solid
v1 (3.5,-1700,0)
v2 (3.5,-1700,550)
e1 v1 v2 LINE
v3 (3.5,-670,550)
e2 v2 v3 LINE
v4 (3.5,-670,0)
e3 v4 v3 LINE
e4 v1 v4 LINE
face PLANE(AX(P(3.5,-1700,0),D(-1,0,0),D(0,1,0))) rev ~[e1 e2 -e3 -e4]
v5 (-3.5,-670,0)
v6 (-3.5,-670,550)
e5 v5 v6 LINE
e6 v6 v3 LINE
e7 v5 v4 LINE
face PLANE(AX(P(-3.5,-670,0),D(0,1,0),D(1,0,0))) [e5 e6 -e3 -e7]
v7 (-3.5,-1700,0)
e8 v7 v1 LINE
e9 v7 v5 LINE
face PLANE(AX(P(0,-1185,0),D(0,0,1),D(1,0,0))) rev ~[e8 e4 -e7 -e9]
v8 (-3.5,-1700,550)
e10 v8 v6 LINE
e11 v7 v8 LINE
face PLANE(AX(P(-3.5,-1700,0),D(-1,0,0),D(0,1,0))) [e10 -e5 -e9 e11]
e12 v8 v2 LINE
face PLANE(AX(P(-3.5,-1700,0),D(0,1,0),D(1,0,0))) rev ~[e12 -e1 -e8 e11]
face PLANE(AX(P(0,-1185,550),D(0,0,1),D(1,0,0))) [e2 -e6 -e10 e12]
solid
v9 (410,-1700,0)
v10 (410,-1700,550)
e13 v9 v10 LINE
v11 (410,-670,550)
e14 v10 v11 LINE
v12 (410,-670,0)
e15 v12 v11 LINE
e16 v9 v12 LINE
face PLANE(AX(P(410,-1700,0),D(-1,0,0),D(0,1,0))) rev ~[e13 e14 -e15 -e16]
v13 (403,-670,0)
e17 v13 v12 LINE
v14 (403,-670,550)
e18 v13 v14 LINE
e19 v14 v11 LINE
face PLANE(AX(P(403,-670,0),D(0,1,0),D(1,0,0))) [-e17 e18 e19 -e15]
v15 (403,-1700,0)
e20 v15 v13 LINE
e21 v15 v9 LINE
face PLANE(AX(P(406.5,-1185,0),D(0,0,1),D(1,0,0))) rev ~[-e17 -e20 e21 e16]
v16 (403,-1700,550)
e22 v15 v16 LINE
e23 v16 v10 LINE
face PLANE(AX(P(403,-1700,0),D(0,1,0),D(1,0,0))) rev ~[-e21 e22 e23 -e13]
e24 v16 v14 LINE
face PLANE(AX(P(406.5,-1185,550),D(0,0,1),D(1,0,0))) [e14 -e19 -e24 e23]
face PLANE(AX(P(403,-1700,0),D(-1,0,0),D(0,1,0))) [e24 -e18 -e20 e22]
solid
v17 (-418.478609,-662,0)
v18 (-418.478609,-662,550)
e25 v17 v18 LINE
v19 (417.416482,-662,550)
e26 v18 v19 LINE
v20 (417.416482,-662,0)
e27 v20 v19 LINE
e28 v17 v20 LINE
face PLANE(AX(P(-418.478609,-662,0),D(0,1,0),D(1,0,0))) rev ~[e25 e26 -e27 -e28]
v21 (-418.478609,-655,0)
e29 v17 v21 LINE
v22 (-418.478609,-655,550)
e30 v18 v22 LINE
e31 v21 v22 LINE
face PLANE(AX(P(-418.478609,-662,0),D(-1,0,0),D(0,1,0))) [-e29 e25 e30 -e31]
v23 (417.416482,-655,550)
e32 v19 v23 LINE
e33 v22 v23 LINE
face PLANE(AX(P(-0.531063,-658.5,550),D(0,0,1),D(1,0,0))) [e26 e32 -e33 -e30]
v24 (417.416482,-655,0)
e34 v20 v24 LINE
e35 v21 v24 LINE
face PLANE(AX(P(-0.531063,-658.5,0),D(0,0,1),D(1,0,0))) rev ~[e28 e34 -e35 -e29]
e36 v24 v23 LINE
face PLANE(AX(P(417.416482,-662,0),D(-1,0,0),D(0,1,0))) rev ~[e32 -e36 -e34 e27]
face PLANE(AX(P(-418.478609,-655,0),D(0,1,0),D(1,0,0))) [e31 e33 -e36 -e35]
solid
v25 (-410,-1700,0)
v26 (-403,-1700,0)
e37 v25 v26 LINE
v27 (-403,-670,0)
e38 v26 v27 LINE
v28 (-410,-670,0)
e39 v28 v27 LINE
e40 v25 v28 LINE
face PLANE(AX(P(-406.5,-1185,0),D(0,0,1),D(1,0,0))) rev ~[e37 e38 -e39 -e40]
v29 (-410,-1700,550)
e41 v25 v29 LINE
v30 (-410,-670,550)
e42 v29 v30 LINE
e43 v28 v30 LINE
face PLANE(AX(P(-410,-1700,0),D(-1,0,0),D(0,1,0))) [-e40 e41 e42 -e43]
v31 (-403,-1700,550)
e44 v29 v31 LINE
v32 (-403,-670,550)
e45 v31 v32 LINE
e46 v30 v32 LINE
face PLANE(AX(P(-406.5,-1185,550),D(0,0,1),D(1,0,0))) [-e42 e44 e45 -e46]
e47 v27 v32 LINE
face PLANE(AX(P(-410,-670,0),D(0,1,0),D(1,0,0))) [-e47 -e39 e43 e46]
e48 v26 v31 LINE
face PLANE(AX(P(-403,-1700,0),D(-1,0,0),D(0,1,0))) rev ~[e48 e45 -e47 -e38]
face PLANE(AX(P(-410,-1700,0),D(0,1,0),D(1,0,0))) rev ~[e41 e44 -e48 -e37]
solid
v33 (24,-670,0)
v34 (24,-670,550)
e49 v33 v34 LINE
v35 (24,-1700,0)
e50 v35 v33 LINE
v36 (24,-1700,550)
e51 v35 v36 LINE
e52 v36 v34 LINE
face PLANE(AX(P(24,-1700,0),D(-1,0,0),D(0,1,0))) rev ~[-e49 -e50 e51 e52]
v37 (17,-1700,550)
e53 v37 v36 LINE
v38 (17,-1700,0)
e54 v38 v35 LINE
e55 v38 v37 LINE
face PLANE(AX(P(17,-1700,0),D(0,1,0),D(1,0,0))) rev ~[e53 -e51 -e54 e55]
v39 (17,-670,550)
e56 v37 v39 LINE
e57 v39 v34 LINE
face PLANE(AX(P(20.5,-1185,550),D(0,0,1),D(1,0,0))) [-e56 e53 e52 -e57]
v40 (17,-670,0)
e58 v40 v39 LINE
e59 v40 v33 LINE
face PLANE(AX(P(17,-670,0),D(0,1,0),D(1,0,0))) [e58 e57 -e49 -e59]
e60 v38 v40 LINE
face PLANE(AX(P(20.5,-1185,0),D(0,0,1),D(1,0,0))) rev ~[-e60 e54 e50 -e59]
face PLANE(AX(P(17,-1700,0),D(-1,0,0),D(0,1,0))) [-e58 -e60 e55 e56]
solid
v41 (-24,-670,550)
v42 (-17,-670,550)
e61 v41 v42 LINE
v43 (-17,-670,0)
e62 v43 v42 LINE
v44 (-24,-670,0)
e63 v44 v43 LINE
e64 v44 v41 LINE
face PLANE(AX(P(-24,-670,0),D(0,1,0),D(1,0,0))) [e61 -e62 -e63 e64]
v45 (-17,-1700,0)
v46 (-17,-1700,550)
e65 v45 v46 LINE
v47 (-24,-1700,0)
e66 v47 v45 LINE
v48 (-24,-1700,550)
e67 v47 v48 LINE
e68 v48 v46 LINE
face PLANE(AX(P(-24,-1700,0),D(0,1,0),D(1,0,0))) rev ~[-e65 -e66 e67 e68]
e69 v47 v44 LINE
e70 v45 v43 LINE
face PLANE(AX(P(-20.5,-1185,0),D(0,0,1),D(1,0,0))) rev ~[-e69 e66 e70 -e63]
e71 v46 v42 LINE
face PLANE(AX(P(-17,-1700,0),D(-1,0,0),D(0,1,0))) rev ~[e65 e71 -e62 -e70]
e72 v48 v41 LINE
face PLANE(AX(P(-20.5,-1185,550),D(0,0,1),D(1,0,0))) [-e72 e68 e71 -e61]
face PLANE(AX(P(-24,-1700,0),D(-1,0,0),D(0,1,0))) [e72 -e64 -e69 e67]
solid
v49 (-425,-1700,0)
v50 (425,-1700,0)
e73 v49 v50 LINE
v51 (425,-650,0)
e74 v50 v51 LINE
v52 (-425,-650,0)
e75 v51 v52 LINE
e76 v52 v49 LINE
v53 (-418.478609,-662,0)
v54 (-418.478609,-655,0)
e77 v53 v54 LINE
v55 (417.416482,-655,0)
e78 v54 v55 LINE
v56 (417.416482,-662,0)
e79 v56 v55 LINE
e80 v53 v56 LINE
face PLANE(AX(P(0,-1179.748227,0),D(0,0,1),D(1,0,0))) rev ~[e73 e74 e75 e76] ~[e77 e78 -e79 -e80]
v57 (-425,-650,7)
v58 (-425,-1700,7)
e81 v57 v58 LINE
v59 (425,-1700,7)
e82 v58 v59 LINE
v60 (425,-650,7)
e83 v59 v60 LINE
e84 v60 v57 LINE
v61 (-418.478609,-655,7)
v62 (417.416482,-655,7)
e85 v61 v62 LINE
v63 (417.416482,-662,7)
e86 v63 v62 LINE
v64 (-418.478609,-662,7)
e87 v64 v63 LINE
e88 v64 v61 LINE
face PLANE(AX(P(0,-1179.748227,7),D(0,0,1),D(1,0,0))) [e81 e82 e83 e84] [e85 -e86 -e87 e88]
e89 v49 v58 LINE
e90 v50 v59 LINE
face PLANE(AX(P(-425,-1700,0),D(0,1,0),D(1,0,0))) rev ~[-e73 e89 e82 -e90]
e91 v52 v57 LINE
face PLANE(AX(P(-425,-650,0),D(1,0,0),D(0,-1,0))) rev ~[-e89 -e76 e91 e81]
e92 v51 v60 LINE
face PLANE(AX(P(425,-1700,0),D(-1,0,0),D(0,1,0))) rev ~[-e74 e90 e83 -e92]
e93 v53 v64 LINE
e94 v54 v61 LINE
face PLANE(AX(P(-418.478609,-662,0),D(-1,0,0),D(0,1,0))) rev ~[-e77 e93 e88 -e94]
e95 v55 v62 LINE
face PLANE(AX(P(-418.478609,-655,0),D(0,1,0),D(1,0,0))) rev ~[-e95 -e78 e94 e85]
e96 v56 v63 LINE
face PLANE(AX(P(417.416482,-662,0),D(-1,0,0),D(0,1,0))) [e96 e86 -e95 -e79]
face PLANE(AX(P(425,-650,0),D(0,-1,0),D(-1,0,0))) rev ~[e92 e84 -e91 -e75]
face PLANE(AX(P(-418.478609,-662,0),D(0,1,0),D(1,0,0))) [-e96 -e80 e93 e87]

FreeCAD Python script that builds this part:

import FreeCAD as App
import Part
import Sketcher

V = App.Vector

doc = App.newDocument("Part")
body = doc.addObject("PartDesign::Body", "Body")
body.AllowCompound = True

# Sketch on XY plane
sketch1 = body.newObject("Sketcher::SketchObject", "Sketch")
sketch1.AttachmentSupport = (doc.getObject("XY_Plane"), [""])
sketch1.MapMode = "FlatFace"
sketch1.addGeometry(Part.LineSegment(V(403, -670, 0), V(403, -1700, 0)), False)
sketch1.addGeometry(Part.LineSegment(V(403, -1700, 0), V(410, -1700, 0)), False)
sketch1.addGeometry(Part.LineSegment(V(410, -1700, 0), V(410, -670, 0)), False)
sketch1.addGeometry(Part.LineSegment(V(410, -670, 0), V(403, -670, 0)), False)
sketch1.addGeometry(Part.LineSegment(V(17, -670, 0), V(17, -1700, 0)), False)
sketch1.addGeometry(Part.LineSegment(V(17, -1700, 0), V(24, -1700, 0)), False)
sketch1.addGeometry(Part.LineSegment(V(24, -1700, 0), V(24, -670, 0)), False)
sketch1.addGeometry(Part.LineSegment(V(24, -670, 0), V(17, -670, 0)), False)
sketch1.addGeometry(Part.LineSegment(V(-4, -670, 0), V(-4, -1700, 0)), False)
sketch1.addGeometry(Part.LineSegment(V(-4, -1700, 0), V(4, -1700, 0)), False)
sketch1.addGeometry(Part.LineSegment(V(4, -1700, 0), V(4, -670, 0)), False)
sketch1.addGeometry(Part.LineSegment(V(4, -670, 0), V(-4, -670, 0)), False)
sketch1.addGeometry(Part.LineSegment(V(-24, -670, 0), V(-24, -1700, 0)), False)
sketch1.addGeometry(Part.LineSegment(V(-24, -1700, 0), V(-17, -1700, 0)), False)
sketch1.addGeometry(Part.LineSegment(V(-17, -1700, 0), V(-17, -670, 0)), False)
sketch1.addGeometry(Part.LineSegment(V(-17, -670, 0), V(-24, -670, 0)), False)
sketch1.addGeometry(Part.LineSegment(V(-410, -670, 0), V(-410, -1700, 0)), False)
sketch1.addGeometry(Part.LineSegment(V(-410, -1700, 0), V(-403, -1700, 0)), False)
sketch1.addGeometry(Part.LineSegment(V(-403, -1700, 0), V(-403, -670, 0)), False)
sketch1.addGeometry(Part.LineSegment(V(-403, -670, 0), V(-410, -670, 0)), False)
sketch1.addGeometry(Part.LineSegment(V(-418, -655, 0), V(-418, -662, 0)), False)
sketch1.addGeometry(Part.LineSegment(V(-418, -662, 0), V(417, -662, 0)), False)
sketch1.addGeometry(Part.LineSegment(V(417, -662, 0), V(417, -655, 0)), False)
sketch1.addGeometry(Part.LineSegment(V(417, -655, 0), V(-418, -655, 0)), False)
sketch1.addConstraint(Sketcher.Constraint("Coincident", 0, 2, 1, 1))
sketch1.addConstraint(Sketcher.Constraint("Coincident", 1, 2, 2, 1))
sketch1.addConstraint(Sketcher.Constraint("Coincident", 2, 2, 3, 1))
sketch1.addConstraint(Sketcher.Constraint("Coincident", 3, 2, 0, 1))
sketch1.addConstraint(Sketcher.Constraint("Coincident", 4, 2, 5, 1))
sketch1.addConstraint(Sketcher.Constraint("Coincident", 5, 2, 6, 1))
sketch1.addConstraint(Sketcher.Constraint("Coincident", 6, 2, 7, 1))
sketch1.addConstraint(Sketcher.Constraint("Coincident", 7, 2, 4, 1))
sketch1.addConstraint(Sketcher.Constraint("Coincident", 8, 2, 9, 1))
sketch1.addConstraint(Sketcher.Constraint("Coincident", 9, 2, 10, 1))
sketch1.addConstraint(Sketcher.Constraint("Coincident", 10, 2, 11, 1))
sketch1.addConstraint(Sketcher.Constraint("Coincident", 11, 2, 8, 1))
sketch1.addConstraint(Sketcher.Constraint("Coincident", 12, 2, 13, 1))
sketch1.addConstraint(Sketcher.Constraint("Coincident", 13, 2, 14, 1))
sketch1.addConstraint(Sketcher.Constraint("Coincident", 14, 2, 15, 1))
sketch1.addConstraint(Sketcher.Constraint("Coincident", 15, 2, 12, 1))
sketch1.addConstraint(Sketcher.Constraint("Coincident", 16, 2, 17, 1))
sketch1.addConstraint(Sketcher.Constraint("Coincident", 17, 2, 18, 1))
sketch1.addConstraint(Sketcher.Constraint("Coincident", 18, 2, 19, 1))
sketch1.addConstraint(Sketcher.Constraint("Coincident", 19, 2, 16, 1))
sketch1.addConstraint(Sketcher.Constraint("Coincident", 20, 2, 21, 1))
sketch1.addConstraint(Sketcher.Constraint("Coincident", 21, 2, 22, 1))
sketch1.addConstraint(Sketcher.Constraint("Coincident", 22, 2, 23, 1))
sketch1.addConstraint(Sketcher.Constraint("Coincident", 23, 2, 20, 1))
sketch1.addConstraint(Sketcher.Constraint("Vertical", 0))
sketch1.addConstraint(Sketcher.Constraint("Horizontal", 1))
sketch1.addConstraint(Sketcher.Constraint("Vertical", 2))
sketch1.addConstraint(Sketcher.Constraint("Horizontal", 3))
sketch1.addConstraint(Sketcher.Constraint("Vertical", 4))
sketch1.addConstraint(Sketcher.Constraint("Horizontal", 5))
sketch1.addConstraint(Sketcher.Constraint("Vertical", 6))
sketch1.addConstraint(Sketcher.Constraint("Horizontal", 7))
sketch1.addConstraint(Sketcher.Constraint("Vertical", 8))
sketch1.addConstraint(Sketcher.Constraint("Horizontal", 9))
sketch1.addConstraint(Sketcher.Constraint("Vertical", 10))
sketch1.addConstraint(Sketcher.Constraint("Horizontal", 11))
sketch1.addConstraint(Sketcher.Constraint("Vertical", 12))
sketch1.addConstraint(Sketcher.Constraint("Horizontal", 13))
sketch1.addConstraint(Sketcher.Constraint("Vertical", 14))
sketch1.addConstraint(Sketcher.Constraint("Horizontal", 15))
sketch1.addConstraint(Sketcher.Constraint("Vertical", 16))
sketch1.addConstraint(Sketcher.Constraint("Horizontal", 17))
sketch1.addConstraint(Sketcher.Constraint("Vertical", 18))
sketch1.addConstraint(Sketcher.Constraint("Horizontal", 19))
sketch1.addConstraint(Sketcher.Constraint("Vertical", 20))
sketch1.addConstraint(Sketcher.Constraint("Horizontal", 21))
sketch1.addConstraint(Sketcher.Constraint("Vertical", 22))
sketch1.addConstraint(Sketcher.Constraint("Horizontal", 23))
sketch1.addConstraint(Sketcher.Constraint("Symmetric", 5, 2, 12, 2, -2))
sketch1.addConstraint(Sketcher.Constraint("Symmetric", 7, 2, 14, 2, -2))
sketch1.addConstraint(Sketcher.Constraint("Symmetric", 1, 2, 16, 2, -2))
sketch1.addConstraint(Sketcher.Constraint("Symmetric", 3, 2, 18, 2, -2))
sketch1.addConstraint(Sketcher.Constraint("Horizontal", 1, 2, 4, 2))
sketch1.addConstraint(Sketcher.Constraint("Horizontal", 3, 2, 6, 2))
sketch1.addConstraint(Sketcher.Constraint("Horizontal", 5, 2, 8, 2))
sketch1.addConstraint(Sketcher.Constraint("Horizontal", 7, 2, 10, 2))
sketch1.addConstraint(Sketcher.Constraint("Equal", 3, 5))
sketch1.addConstraint(Sketcher.Constraint("Equal", 7, 9))
sketch1.addConstraint(Sketcher.Constraint("Equal", 19, 20))
sketch1.addConstraint(Sketcher.Constraint("DistanceX", 1, 1, 1, 2, 7.0))
sketch1.addConstraint(Sketcher.Constraint("DistanceY", 0, 2, 0, 1, 1030.0))
sketch1.addConstraint(Sketcher.Constraint("DistanceX", -1, 1, 0, 2, 403.0))
sketch1.addConstraint(Sketcher.Constraint("DistanceY", 0, 2, -1, 1, 1700.0))
sketch1.addConstraint(Sketcher.Constraint("DistanceX", -1, 1, 4, 2, 17.0))
sketch1.addConstraint(Sketcher.Constraint("DistanceY", 20, 2, -1, 1, 662.0))
sketch1.addConstraint(Sketcher.Constraint("DistanceX", 8, 2, -1, 1, 3.5))
sketch1.addConstraint(Sketcher.Constraint("DistanceX", 21, 1, 21, 2, 835.895091))
sketch1.addConstraint(Sketcher.Constraint("DistanceX", 20, 2, -1, 1, 418.478609))
pad1 = body.newObject("PartDesign::Pad", "Pad")
pad1.Profile = sketch1
pad1.Length = 550
body2 = doc.addObject("PartDesign::Body", "Body001")

# Sketch on XY plane
sketch2 = body2.newObject("Sketcher::SketchObject", "Sketch001")
sketch2.AttachmentSupport = (doc.getObject("XY_Plane001"), [""])
sketch2.MapMode = "FlatFace"
sketch2.addGeometry(Part.LineSegment(V(425, -1700, 0), V(425, -650, 0)), False)
sketch2.addGeometry(Part.LineSegment(V(425, -650, 0), V(-425, -650, 0)), False)
sketch2.addGeometry(Part.LineSegment(V(-425, -650, 0), V(-425, -1700, 0)), False)
sketch2.addGeometry(Part.LineSegment(V(-425, -1700, 0), V(425, -1700, 0)), False)
sketch2.addGeometry(Part.LineSegment(V(417, -662, 0), V(-418, -662, 0)), False)
sketch2.addGeometry(Part.LineSegment(V(-418, -662, 0), V(-418, -655, 0)), False)
sketch2.addGeometry(Part.LineSegment(V(-418, -655, 0), V(417, -655, 0)), False)
sketch2.addGeometry(Part.LineSegment(V(417, -655, 0), V(417, -662, 0)), False)
sketch2.addConstraint(Sketcher.Constraint("Coincident", 0, 2, 1, 1))
sketch2.addConstraint(Sketcher.Constraint("Coincident", 1, 2, 2, 1))
sketch2.addConstraint(Sketcher.Constraint("Coincident", 2, 2, 3, 1))
sketch2.addConstraint(Sketcher.Constraint("Coincident", 3, 2, 0, 1))
sketch2.addConstraint(Sketcher.Constraint("Coincident", 4, 2, 5, 1))
sketch2.addConstraint(Sketcher.Constraint("Coincident", 5, 2, 6, 1))
sketch2.addConstraint(Sketcher.Constraint("Coincident", 6, 2, 7, 1))
sketch2.addConstraint(Sketcher.Constraint("Coincident", 7, 2, 4, 1))
sketch2.addConstraint(Sketcher.Constraint("Vertical", 0))
sketch2.addConstraint(Sketcher.Constraint("Horizontal", 1))
sketch2.addConstraint(Sketcher.Constraint("Vertical", 2))
sketch2.addConstraint(Sketcher.Constraint("Horizontal", 3))
sketch2.addConstraint(Sketcher.Constraint("Horizontal", 4))
sketch2.addConstraint(Sketcher.Constraint("Vertical", 5))
sketch2.addConstraint(Sketcher.Constraint("Horizontal", 6))
sketch2.addConstraint(Sketcher.Constraint("Vertical", 7))
sketch2.addConstraint(Sketcher.Constraint("DistanceX", 1, 2, 1, 1, 850.0))
sketch2.addConstraint(Sketcher.Constraint("DistanceY", 0, 1, 0, 2, 1050.0))
sketch2.addConstraint(Sketcher.Constraint("DistanceY", 5, 1, 5, 2, 7.0))
sketch2.addConstraint(Sketcher.Constraint("DistanceX", -1, 1, 0, 2, 425.0))
sketch2.addConstraint(Sketcher.Constraint("DistanceY", 0, 2, -1, 1, 650.0))
sketch2.addConstraint(Sketcher.Constraint("DistanceY", 4, 2, -1, 1, 662.0))
sketch2.addConstraint(Sketcher.Constraint("DistanceX", 4, 2, 4, 1, 835.895091))
sketch2.addConstraint(Sketcher.Constraint("DistanceX", 4, 2, -1, 1, 418.478609))
pad2 = body2.newObject("PartDesign::Pad", "Pad001")
pad2.Profile = sketch2
pad2.Length = 7

doc.recompute()
